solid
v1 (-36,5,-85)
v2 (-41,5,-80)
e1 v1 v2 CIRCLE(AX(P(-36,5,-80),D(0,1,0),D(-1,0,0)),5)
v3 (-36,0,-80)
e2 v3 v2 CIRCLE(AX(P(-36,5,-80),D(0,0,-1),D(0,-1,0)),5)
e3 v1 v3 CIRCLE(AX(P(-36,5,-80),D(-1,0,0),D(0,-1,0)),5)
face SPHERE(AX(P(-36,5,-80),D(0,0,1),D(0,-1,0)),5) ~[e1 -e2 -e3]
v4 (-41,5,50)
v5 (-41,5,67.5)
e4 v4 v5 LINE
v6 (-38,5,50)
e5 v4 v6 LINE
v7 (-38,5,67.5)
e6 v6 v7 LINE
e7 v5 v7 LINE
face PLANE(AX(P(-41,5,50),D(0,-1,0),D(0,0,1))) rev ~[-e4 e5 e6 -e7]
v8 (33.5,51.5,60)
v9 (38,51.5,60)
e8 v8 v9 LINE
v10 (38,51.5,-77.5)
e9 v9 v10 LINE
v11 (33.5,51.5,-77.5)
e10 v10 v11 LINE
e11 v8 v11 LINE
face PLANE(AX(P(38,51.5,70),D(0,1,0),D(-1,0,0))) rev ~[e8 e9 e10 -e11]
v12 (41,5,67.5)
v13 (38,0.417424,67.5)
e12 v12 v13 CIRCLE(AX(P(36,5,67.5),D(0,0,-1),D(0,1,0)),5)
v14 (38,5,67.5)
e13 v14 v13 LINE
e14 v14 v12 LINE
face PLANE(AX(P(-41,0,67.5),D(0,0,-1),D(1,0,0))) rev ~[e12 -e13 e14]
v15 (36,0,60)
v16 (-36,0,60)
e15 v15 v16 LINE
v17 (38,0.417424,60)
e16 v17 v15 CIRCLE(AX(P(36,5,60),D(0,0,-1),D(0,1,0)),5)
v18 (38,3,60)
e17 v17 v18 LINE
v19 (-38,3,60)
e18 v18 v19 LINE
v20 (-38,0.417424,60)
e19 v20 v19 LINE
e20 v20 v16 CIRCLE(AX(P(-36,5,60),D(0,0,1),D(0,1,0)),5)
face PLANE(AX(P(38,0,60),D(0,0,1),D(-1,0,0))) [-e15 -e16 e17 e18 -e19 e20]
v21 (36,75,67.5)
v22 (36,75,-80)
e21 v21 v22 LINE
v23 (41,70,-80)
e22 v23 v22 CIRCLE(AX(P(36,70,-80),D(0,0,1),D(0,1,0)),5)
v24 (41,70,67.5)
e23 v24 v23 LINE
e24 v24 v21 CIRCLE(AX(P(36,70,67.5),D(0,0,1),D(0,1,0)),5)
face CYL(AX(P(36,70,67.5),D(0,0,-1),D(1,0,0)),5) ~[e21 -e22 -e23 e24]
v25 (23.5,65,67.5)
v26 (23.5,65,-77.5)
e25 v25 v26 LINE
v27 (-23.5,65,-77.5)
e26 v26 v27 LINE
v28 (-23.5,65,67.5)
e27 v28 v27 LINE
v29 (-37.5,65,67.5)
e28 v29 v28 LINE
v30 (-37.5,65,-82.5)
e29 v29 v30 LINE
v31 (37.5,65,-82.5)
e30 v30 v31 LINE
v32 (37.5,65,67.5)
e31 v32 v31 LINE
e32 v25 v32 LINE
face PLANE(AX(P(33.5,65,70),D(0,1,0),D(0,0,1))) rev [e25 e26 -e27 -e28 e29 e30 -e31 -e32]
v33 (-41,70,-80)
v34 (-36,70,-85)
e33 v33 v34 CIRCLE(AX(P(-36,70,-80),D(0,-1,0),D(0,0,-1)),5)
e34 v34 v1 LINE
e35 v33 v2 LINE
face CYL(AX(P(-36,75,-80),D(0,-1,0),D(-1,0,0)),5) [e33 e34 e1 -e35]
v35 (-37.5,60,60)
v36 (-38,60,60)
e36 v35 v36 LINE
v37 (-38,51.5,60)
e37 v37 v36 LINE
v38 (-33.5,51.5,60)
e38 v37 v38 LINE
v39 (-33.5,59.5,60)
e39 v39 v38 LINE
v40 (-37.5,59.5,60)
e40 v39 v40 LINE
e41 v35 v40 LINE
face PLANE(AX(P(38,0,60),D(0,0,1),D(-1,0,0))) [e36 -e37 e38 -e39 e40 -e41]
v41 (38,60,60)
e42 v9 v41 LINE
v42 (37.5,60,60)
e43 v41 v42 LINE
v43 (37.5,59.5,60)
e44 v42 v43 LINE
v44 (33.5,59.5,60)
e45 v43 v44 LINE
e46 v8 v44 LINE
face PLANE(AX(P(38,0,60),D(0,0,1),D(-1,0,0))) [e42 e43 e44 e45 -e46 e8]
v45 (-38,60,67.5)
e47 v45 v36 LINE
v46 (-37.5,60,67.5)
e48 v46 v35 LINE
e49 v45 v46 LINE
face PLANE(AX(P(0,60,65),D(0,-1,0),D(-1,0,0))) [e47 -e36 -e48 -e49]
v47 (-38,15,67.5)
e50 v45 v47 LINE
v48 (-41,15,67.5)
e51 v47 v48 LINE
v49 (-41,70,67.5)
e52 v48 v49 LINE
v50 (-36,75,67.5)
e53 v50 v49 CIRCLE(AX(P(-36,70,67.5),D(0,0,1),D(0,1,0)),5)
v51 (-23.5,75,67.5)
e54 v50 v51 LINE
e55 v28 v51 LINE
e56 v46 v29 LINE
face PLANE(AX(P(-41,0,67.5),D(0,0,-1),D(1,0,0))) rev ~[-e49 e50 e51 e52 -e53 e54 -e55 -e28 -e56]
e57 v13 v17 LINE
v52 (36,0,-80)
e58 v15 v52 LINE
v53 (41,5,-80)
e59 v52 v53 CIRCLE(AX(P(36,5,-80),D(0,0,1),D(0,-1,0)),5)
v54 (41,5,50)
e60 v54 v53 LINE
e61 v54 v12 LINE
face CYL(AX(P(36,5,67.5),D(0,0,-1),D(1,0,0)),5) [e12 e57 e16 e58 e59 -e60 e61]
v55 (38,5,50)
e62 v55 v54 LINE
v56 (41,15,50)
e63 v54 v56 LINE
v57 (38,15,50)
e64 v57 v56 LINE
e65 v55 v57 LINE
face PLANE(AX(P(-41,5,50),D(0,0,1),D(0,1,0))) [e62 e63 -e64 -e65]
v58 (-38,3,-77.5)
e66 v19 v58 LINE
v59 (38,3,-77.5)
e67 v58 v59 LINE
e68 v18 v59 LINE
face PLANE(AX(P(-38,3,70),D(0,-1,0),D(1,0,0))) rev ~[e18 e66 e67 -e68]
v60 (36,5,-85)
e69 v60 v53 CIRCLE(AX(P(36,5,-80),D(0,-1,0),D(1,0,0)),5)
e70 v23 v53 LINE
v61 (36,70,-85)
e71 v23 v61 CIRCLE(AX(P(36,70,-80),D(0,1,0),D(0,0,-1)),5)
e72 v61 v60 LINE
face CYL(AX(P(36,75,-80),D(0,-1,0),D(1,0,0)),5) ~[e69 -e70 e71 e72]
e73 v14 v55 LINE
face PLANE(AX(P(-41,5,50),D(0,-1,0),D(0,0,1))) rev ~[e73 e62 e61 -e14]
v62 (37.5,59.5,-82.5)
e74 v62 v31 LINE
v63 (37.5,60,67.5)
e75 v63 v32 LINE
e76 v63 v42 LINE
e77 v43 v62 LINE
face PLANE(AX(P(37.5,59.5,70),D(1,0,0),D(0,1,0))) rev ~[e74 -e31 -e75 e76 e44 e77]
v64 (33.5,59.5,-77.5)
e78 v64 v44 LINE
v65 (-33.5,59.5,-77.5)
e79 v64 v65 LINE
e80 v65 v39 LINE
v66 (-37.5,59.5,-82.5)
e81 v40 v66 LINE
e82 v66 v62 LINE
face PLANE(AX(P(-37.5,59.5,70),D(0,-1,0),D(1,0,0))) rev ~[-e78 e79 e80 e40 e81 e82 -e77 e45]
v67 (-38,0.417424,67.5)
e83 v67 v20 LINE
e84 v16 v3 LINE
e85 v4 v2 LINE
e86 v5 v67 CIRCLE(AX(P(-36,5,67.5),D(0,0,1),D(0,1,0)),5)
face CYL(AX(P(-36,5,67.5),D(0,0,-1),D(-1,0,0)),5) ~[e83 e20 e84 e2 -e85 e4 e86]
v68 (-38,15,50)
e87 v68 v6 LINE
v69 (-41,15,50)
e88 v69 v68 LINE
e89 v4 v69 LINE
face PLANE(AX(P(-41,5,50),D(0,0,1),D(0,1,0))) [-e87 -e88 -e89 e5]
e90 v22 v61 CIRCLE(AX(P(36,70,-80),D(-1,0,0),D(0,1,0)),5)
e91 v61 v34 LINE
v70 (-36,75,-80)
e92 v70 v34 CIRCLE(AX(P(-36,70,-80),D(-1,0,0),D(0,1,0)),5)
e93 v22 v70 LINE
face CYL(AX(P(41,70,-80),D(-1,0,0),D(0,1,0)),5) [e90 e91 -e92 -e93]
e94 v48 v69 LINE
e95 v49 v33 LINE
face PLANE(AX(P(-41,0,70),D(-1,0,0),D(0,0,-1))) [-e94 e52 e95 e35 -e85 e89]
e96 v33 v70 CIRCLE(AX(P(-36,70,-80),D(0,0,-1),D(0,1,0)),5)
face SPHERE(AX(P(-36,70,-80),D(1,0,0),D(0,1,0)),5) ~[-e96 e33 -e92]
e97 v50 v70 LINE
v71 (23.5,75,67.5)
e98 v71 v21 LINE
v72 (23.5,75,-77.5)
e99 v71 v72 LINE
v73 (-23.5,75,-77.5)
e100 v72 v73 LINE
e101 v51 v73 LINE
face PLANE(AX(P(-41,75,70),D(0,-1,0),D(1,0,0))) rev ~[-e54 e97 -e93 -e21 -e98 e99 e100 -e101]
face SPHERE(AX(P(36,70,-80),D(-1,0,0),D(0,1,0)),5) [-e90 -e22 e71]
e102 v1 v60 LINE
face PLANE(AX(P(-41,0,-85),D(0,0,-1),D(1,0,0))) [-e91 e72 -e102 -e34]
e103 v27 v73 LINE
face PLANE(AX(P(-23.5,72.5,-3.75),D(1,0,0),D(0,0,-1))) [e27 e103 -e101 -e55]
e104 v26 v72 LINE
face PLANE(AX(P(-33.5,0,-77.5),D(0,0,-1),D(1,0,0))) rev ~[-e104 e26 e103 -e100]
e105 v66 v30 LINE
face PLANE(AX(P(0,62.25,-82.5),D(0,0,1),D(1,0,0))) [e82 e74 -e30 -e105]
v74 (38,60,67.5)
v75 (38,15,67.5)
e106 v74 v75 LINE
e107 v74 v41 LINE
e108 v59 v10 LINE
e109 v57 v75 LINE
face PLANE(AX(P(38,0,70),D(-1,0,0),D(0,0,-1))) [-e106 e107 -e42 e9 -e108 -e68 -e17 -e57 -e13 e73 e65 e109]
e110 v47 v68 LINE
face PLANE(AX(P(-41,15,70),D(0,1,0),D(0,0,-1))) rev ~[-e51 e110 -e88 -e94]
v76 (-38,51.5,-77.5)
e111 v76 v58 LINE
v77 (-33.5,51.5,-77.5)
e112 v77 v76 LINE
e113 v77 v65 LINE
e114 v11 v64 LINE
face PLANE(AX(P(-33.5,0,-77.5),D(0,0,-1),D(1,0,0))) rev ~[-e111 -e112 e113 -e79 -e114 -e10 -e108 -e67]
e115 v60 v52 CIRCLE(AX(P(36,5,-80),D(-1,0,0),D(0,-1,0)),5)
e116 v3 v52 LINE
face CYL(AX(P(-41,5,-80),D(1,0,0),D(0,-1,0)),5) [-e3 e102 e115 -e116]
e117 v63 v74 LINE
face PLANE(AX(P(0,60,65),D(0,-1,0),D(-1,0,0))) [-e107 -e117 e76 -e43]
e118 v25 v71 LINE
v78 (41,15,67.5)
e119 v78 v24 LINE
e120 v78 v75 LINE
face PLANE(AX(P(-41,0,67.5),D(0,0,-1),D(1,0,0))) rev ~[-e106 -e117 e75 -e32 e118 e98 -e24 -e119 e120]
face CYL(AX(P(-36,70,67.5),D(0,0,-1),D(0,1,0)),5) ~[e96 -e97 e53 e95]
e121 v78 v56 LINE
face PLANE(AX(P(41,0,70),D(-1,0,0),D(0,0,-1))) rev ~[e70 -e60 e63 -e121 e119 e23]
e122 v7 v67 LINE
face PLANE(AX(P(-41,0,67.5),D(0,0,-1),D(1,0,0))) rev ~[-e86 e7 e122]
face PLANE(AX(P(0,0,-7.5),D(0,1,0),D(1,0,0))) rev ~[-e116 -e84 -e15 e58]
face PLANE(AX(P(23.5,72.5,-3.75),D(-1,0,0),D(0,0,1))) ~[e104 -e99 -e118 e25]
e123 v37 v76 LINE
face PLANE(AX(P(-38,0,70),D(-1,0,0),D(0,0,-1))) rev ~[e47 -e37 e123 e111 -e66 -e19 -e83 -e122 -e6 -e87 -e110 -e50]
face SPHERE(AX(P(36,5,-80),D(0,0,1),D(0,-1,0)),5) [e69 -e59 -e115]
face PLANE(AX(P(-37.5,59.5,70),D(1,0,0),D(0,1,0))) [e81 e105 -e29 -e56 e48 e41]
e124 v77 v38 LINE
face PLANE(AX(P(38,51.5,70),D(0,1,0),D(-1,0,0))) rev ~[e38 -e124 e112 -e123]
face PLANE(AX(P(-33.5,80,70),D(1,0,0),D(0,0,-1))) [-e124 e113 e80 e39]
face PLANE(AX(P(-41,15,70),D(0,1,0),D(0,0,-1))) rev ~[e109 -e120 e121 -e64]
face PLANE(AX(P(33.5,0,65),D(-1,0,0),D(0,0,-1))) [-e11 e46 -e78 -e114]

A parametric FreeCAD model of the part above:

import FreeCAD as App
import Part
import Sketcher
from FreeCAD import Vector
Q = App.Units.Quantity


def edges_at(feature, points):
    """Names of the edges that pass closest to the given points."""
    edges = feature.Shape.Edges
    near = lambda p: min(range(len(edges)), key=lambda i: edges[i].distToShape(Part.Vertex(*p))[0])
    return sorted({f"Edge{near(p) + 1}" for p in points})


def add_polygon(sketch, points):
    """Adds a closed chain of lines whose ends are joined by coincident constraints."""
    first, n = sketch.GeometryCount, len(points)
    for a, b in zip(points, points[1:] + points[:1]):
        sketch.addGeometry(Part.LineSegment(App.Vector(*a, 0), App.Vector(*b, 0)), False)
    for i in range(n):
        sketch.addConstraint(Sketcher.Constraint("Coincident", first + i, 2, first + (i + 1) % n, 1))

doc = App.newDocument("Part")
params = doc.addObject("Spreadsheet::Sheet", "Params")
for row, (alias, value) in enumerate([
    ("sketch1_width", "82 mm"),
    ("sketch1_height", "155 mm"),
    ("pad1_length", "5 mm"),
    ("sketch2_width", "82 mm"),
    ("sketch2_width2", "67 mm"),
    ("sketch2_height", "155 mm"),
    ("sketch2_height2", "142.5 mm"),
    ("pad2_length", "80 mm"),
    ("sketch3_width", "10 mm"),
    ("sketch3_height", "20 mm"),
    ("pocket1_length", "120 mm"),
    ("sketch4_width", "75 mm"),
    ("sketch4_height", "5.5 mm"),
    ("pocket2_length", "152.5 mm"),
    ("sketch5_width", "67 mm"),
    ("sketch5_height", "5 mm"),
    ("pocket3_length", "140 mm"),
    ("sketch6_width", "15 mm"),
    ("sketch6_height", "147.5 mm"),
    ("pad3_length", "10 mm"),
    ("sketch7_width", "76 mm"),
    ("sketch7_height", "48.5 mm"),
    ("pocket4_length", "147.5 mm"),
    ("sketch8_width", "82 mm"),
    ("sketch8_height", "5 mm"),
    ("pocket5_length", "167.5 mm"),
    ("sketch9_width", "76 mm"),
    ("sketch9_height", "10 mm"),
    ("pocket6_length", "60 mm"),
    ("sketch10_width", "82 mm"),
    ("sketch10_height", "2.5 mm"),
    ("pocket7_length", "300 mm"),
    ("fillet_radius", "5 mm"),
], start=1):
    params.set(f"A{row}", alias)
    params.set(f"B{row}", "=" + value)
    params.setAlias(f"B{row}", alias)

body = doc.addObject("PartDesign::Body", "Body")

sketch1 = body.newObject("Sketcher::SketchObject", "Sketch")
sketch1.AttachmentSupport = (doc.getObject("XZ_Plane"), [""])
sketch1.MapMode = "FlatFace"
add_polygon(sketch1, [(-41, -85), (-41, 70), (41, 70), (41, -85)])
sketch1.addConstraint(Sketcher.Constraint("Vertical", 0))
sketch1.addConstraint(Sketcher.Constraint("Horizontal", 1))
sketch1.addConstraint(Sketcher.Constraint("Vertical", 2))
sketch1.addConstraint(Sketcher.Constraint("Horizontal", 3))
sketch1.addConstraint(Sketcher.Constraint("DistanceX", 1, 1, 1, 2, Q("82 mm")))
sketch1.addConstraint(Sketcher.Constraint("DistanceY", 0, 1, 0, 2, Q("155 mm")))
sketch1.addConstraint(Sketcher.Constraint("DistanceX", 0, 2, -1, 1, Q("41 mm")))
sketch1.addConstraint(Sketcher.Constraint("DistanceY", -1, 1, 0, 2, Q("70 mm")))
sketch1.setExpression("Constraints[8]", "Params.sketch1_width")
sketch1.setExpression("Constraints[9]", "Params.sketch1_height")
pad1 = body.newObject("PartDesign::Pad", "Pad")
pad1.Profile = sketch1
pad1.setExpression("Length", "Params.pad1_length")
pad1.Reversed = True

sketch2 = body.newObject("Sketcher::SketchObject", "Sketch001")
sketch2.AttachmentSupport = (doc.getObject("XZ_Plane"), [""])
sketch2.MapMode = "FlatFace"
add_polygon(sketch2, [(-41, -85), (-41, 70), (41, 70), (41, -85)])
add_polygon(sketch2, [(34, 65), (-34, 65), (-34, -78), (34, -78)])
sketch2.addConstraint(Sketcher.Constraint("Vertical", 0))
sketch2.addConstraint(Sketcher.Constraint("Horizontal", 1))
sketch2.addConstraint(Sketcher.Constraint("Vertical", 2))
sketch2.addConstraint(Sketcher.Constraint("Horizontal", 3))
sketch2.addConstraint(Sketcher.Constraint("Horizontal", 4))
sketch2.addConstraint(Sketcher.Constraint("Vertical", 5))
sketch2.addConstraint(Sketcher.Constraint("Horizontal", 6))
sketch2.addConstraint(Sketcher.Constraint("Vertical", 7))
sketch2.addConstraint(Sketcher.Constraint("DistanceX", 1, 1, 1, 2, Q("82 mm")))
sketch2.addConstraint(Sketcher.Constraint("DistanceX", 4, 2, 4, 1, Q("67 mm")))
sketch2.addConstraint(Sketcher.Constraint("DistanceY", 0, 1, 0, 2, Q("155 mm")))
sketch2.addConstraint(Sketcher.Constraint("DistanceY", 5, 2, 5, 1, Q("142.5 mm")))
sketch2.addConstraint(Sketcher.Constraint("DistanceX", 0, 2, -1, 1, Q("41 mm")))
sketch2.addConstraint(Sketcher.Constraint("DistanceY", -1, 1, 0, 2, Q("70 mm")))
sketch2.addConstraint(Sketcher.Constraint("DistanceY", -1, 1, 4, 2, Q("65 mm")))
sketch2.addConstraint(Sketcher.Constraint("DistanceX", 4, 2, -1, 1, Q("33.5 mm")))
sketch2.setExpression("Constraints[16]", "Params.sketch2_width")
sketch2.setExpression("Constraints[17]", "Params.sketch2_width2")
sketch2.setExpression("Constraints[18]", "Params.sketch2_height")
sketch2.setExpression("Constraints[19]", "Params.sketch2_height2")
pad2 = body.newObject("PartDesign::Pad", "Pad001")
pad2.Profile = sketch2
pad2.setExpression("Length", "Params.pad2_length")
pad2.Reversed = True

sketch3 = body.newObject("Sketcher::SketchObject", "Sketch002")
sketch3.AttachmentSupport = (doc.getObject("YZ_Plane"), [""])
sketch3.MapMode = "FlatFace"
sketch3.AttachmentOffset = App.Placement(Vector(0, 0, -41), App.Rotation())
add_polygon(sketch3, [(5, 70), (15, 70), (15, 50), (5, 50)])
sketch3.addConstraint(Sketcher.Constraint("Horizontal", 0))
sketch3.addConstraint(Sketcher.Constraint("Vertical", 1))
sketch3.addConstraint(Sketcher.Constraint("Horizontal", 2))
sketch3.addConstraint(Sketcher.Constraint("Vertical", 3))
sketch3.addConstraint(Sketcher.Constraint("DistanceX", 0, 1, 0, 2, Q("10 mm")))
sketch3.addConstraint(Sketcher.Constraint("DistanceY", 1, 2, 1, 1, Q("20 mm")))
sketch3.addConstraint(Sketcher.Constraint("DistanceX", -1, 1, 0, 2, Q("15 mm")))
sketch3.addConstraint(Sketcher.Constraint("DistanceY", -1, 1, 0, 2, Q("70 mm")))
sketch3.setExpression("Constraints[8]", "Params.sketch3_width")
sketch3.setExpression("Constraints[9]", "Params.sketch3_height")
pocket1 = body.newObject("PartDesign::Pocket", "Pocket")
pocket1.Profile = sketch3
pocket1.setExpression("Length", "Params.pocket1_length")
pocket1.Reversed = True

sketch4 = body.newObject("Sketcher::SketchObject", "Sketch003")
sketch4.AttachmentSupport = (doc.getObject("XY_Plane"), [""])
sketch4.MapMode = "FlatFace"
sketch4.AttachmentOffset = App.Placement(Vector(0, 0, 70), App.Rotation())
add_polygon(sketch4, [(-38, 65), (-38, 60), (38, 60), (38, 65)])
sketch4.addConstraint(Sketcher.Constraint("Vertical", 0))
sketch4.addConstraint(Sketcher.Constraint("Horizontal", 1))
sketch4.addConstraint(Sketcher.Constraint("Vertical", 2))
sketch4.addConstraint(Sketcher.Constraint("Horizontal", 3))
sketch4.addConstraint(Sketcher.Constraint("DistanceX", 1, 1, 1, 2, Q("75 mm")))
sketch4.addConstraint(Sketcher.Constraint("DistanceY", 0, 2, 0, 1, Q("5.5 mm")))
sketch4.addConstraint(Sketcher.Constraint("DistanceY", -1, 1, 2, 2, Q("65 mm")))
sketch4.addConstraint(Sketcher.Constraint("DistanceX", 0, 2, -1, 1, Q("37.5 mm")))
sketch4.setExpression("Constraints[8]", "Params.sketch4_width")
sketch4.setExpression("Constraints[9]", "Params.sketch4_height")
pocket2 = body.newObject("PartDesign::Pocket", "Pocket001")
pocket2.Profile = sketch4
pocket2.setExpression("Length", "Params.pocket2_length")

sketch5 = body.newObject("Sketcher::SketchObject", "Sketch004")
sketch5.AttachmentSupport = (doc.getObject("XZ_Plane"), [""])
sketch5.MapMode = "FlatFace"
sketch5.AttachmentOffset = App.Placement(Vector(0, 0, -80), App.Rotation())
add_polygon(sketch5, [(-34, 65), (-34, 70), (34, 70), (34, 65)])
sketch5.addConstraint(Sketcher.Constraint("Vertical", 0))
sketch5.addConstraint(Sketcher.Constraint("Horizontal", 1))
sketch5.addConstraint(Sketcher.Constraint("Vertical", 2))
sketch5.addConstraint(Sketcher.Constraint("Horizontal", 3))
sketch5.addConstraint(Sketcher.Constraint("DistanceX", 1, 1, 1, 2, Q("67 mm")))
sketch5.addConstraint(Sketcher.Constraint("DistanceY", 0, 1, 0, 2, Q("5 mm")))
sketch5.addConstraint(Sketcher.Constraint("DistanceY", -1, 1, 0, 2, Q("70 mm")))
sketch5.addConstraint(Sketcher.Constraint("DistanceX", 0, 2, -1, 1, Q("33.5 mm")))
sketch5.setExpression("Constraints[8]", "Params.sketch5_width")
sketch5.setExpression("Constraints[9]", "Params.sketch5_height")
pocket3 = body.newObject("PartDesign::Pocket", "Pocket002")
pocket3.Profile = sketch5
pocket3.setExpression("Length", "Params.pocket3_length")
pocket3.Reversed = True

sketch6 = body.newObject("Sketcher::SketchObject", "Sketch005")
sketch6.AttachmentSupport = (doc.getObject("YZ_Plane"), [""])
sketch6.MapMode = "FlatFace"
sketch6.AttachmentOffset = App.Placement(Vector(0, 0, -33.5), App.Rotation())
add_polygon(sketch6, [(80, 70), (65, 70), (65, -78), (80, -78)])
sketch6.addConstraint(Sketcher.Constraint("Horizontal", 0))
sketch6.addConstraint(Sketcher.Constraint("Vertical", 1))
sketch6.addConstraint(Sketcher.Constraint("Horizontal", 2))
sketch6.addConstraint(Sketcher.Constraint("Vertical", 3))
sketch6.addConstraint(Sketcher.Constraint("DistanceX", 0, 2, 0, 1, Q("15 mm")))
sketch6.addConstraint(Sketcher.Constraint("DistanceY", 1, 2, 1, 1, Q("147.5 mm")))
sketch6.addConstraint(Sketcher.Constraint("DistanceX", -1, 1, 0, 2, Q("65 mm")))
sketch6.addConstraint(Sketcher.Constraint("DistanceY", -1, 1, 0, 2, Q("70 mm")))
sketch6.setExpression("Constraints[8]", "Params.sketch6_width")
sketch6.setExpression("Constraints[9]", "Params.sketch6_height")
pad3 = body.newObject("PartDesign::Pad", "Pad002")
pad3.Profile = sketch6
pad3.setExpression("Length", "Params.pad3_length")
doc.recompute()

mirrored = body.newObject("PartDesign::Mirrored", "Mirrored")
mirrored.Originals = [pad3]
mirrored.MirrorPlane = (doc.getObject("YZ_Plane"), [""])
body.Tip = mirrored

sketch7 = body.newObject("Sketcher::SketchObject", "Sketch006")
sketch7.AttachmentSupport = (doc.getObject("XY_Plane"), [""])
sketch7.MapMode = "FlatFace"
sketch7.AttachmentOffset = App.Placement(Vector(0, 0, 70), App.Rotation())
add_polygon(sketch7, [(-38, 52), (-38, 3), (38, 3), (38, 52)])
sketch7.addConstraint(Sketcher.Constraint("Vertical", 0))
sketch7.addConstraint(Sketcher.Constraint("Horizontal", 1))
sketch7.addConstraint(Sketcher.Constraint("Vertical", 2))
sketch7.addConstraint(Sketcher.Constraint("Horizontal", 3))
sketch7.addConstraint(Sketcher.Constraint("DistanceX", 1, 1, 1, 2, Q("76 mm")))
sketch7.addConstraint(Sketcher.Constraint("DistanceY", 0, 2, 0, 1, Q("48.5 mm")))
sketch7.addConstraint(Sketcher.Constraint("DistanceX", 0, 2, -1, 1, Q("38 mm")))
sketch7.addConstraint(Sketcher.Constraint("DistanceY", -1, 1, 0, 2, Q("3 mm")))
sketch7.setExpression("Constraints[8]", "Params.sketch7_width")
sketch7.setExpression("Constraints[9]", "Params.sketch7_height")
pocket4 = body.newObject("PartDesign::Pocket", "Pocket003")
pocket4.Profile = sketch7
pocket4.setExpression("Length", "Params.pocket4_length")

sketch8 = body.newObject("Sketcher::SketchObject", "Sketch007")
sketch8.AttachmentSupport = (doc.getObject("XY_Plane"), [""])
sketch8.MapMode = "FlatFace"
sketch8.AttachmentOffset = App.Placement(Vector(0, 0, 70), App.Rotation())
add_polygon(sketch8, [(-41, 80), (-41, 75), (41, 75), (41, 80)])
sketch8.addConstraint(Sketcher.Constraint("Vertical", 0))
sketch8.addConstraint(Sketcher.Constraint("Horizontal", 1))
sketch8.addConstraint(Sketcher.Constraint("Vertical", 2))
sketch8.addConstraint(Sketcher.Constraint("Horizontal", 3))
sketch8.addConstraint(Sketcher.Constraint("DistanceX", 1, 1, 1, 2, Q("82 mm")))
sketch8.addConstraint(Sketcher.Constraint("DistanceY", 0, 2, 0, 1, Q("5 mm")))
sketch8.addConstraint(Sketcher.Constraint("DistanceX", 0, 2, -1, 1, Q("41 mm")))
sketch8.addConstraint(Sketcher.Constraint("DistanceY", -1, 1, 0, 2, Q("75 mm")))
sketch8.setExpression("Constraints[8]", "Params.sketch8_width")
sketch8.setExpression("Constraints[9]", "Params.sketch8_height")
pocket5 = body.newObject("PartDesign::Pocket", "Pocket004")
pocket5.Profile = sketch8
pocket5.setExpression("Length", "Params.pocket5_length")

sketch9 = body.newObject("Sketcher::SketchObject", "Sketch008")
sketch9.AttachmentSupport = (doc.getObject("XZ_Plane"), [""])
sketch9.MapMode = "FlatFace"
add_polygon(sketch9, [(38, 60), (38, 70), (-38, 70), (-38, 60)])
sketch9.addConstraint(Sketcher.Constraint("Vertical", 0))
sketch9.addConstraint(Sketcher.Constraint("Horizontal", 1))
sketch9.addConstraint(Sketcher.Constraint("Vertical", 2))
sketch9.addConstraint(Sketcher.Constraint("Horizontal", 3))
sketch9.addConstraint(Sketcher.Constraint("DistanceX", 1, 2, 1, 1, Q("76 mm")))
sketch9.addConstraint(Sketcher.Constraint("DistanceY", 0, 1, 0, 2, Q("10 mm")))
sketch9.addConstraint(Sketcher.Constraint("DistanceX", -1, 1, 0, 2, Q("38 mm")))
sketch9.addConstraint(Sketcher.Constraint("DistanceY", -1, 1, 0, 2, Q("70 mm")))
sketch9.setExpression("Constraints[8]", "Params.sketch9_width")
sketch9.setExpression("Constraints[9]", "Params.sketch9_height")
pocket6 = body.newObject("PartDesign::Pocket", "Pocket005")
pocket6.Profile = sketch9
pocket6.setExpression("Length", "Params.pocket6_length")

sketch10 = body.newObject("Sketcher::SketchObject", "Sketch009")
sketch10.AttachmentSupport = (doc.getObject("XZ_Plane"), [""])
sketch10.MapMode = "FlatFace"
add_polygon(sketch10, [(-41, 70), (-41, 67.5), (41, 67.5), (41, 70)])
sketch10.addConstraint(Sketcher.Constraint("Vertical", 0))
sketch10.addConstraint(Sketcher.Constraint("Horizontal", 1))
sketch10.addConstraint(Sketcher.Constraint("Vertical", 2))
sketch10.addConstraint(Sketcher.Constraint("Horizontal", 3))
sketch10.addConstraint(Sketcher.Constraint("DistanceX", 1, 1, 1, 2, Q("82 mm")))
sketch10.addConstraint(Sketcher.Constraint("DistanceY", 0, 2, 0, 1, Q("2.5 mm")))
sketch10.addConstraint(Sketcher.Constraint("DistanceX", 0, 2, -1, 1, Q("41 mm")))
sketch10.addConstraint(Sketcher.Constraint("DistanceY", -1, 1, 2, 2, Q("70 mm")))
sketch10.setExpression("Constraints[8]", "Params.sketch10_width")
sketch10.setExpression("Constraints[9]", "Params.sketch10_height")
pocket7 = body.newObject("PartDesign::Pocket", "Pocket006")
pocket7.Profile = sketch10
pocket7.setExpression("Length", "Params.pocket7_length")
doc.recompute()

fillet = body.newObject("PartDesign::Fillet", "Fillet")
fillet.Base = (pocket7, edges_at(pocket7, [
    (0, 75, -85),
    (41, 75, -8.75),
    (-41, 75, -8.75),
    (-41, 0, -8.75),
    (41, 0, -8.75),
    (0, 0, -85),
    (-41, 37.5, -85),
    (41, 37.5, -85),
]))
fillet.setExpression("Radius", "Params.fillet_radius")

doc.recompute()
